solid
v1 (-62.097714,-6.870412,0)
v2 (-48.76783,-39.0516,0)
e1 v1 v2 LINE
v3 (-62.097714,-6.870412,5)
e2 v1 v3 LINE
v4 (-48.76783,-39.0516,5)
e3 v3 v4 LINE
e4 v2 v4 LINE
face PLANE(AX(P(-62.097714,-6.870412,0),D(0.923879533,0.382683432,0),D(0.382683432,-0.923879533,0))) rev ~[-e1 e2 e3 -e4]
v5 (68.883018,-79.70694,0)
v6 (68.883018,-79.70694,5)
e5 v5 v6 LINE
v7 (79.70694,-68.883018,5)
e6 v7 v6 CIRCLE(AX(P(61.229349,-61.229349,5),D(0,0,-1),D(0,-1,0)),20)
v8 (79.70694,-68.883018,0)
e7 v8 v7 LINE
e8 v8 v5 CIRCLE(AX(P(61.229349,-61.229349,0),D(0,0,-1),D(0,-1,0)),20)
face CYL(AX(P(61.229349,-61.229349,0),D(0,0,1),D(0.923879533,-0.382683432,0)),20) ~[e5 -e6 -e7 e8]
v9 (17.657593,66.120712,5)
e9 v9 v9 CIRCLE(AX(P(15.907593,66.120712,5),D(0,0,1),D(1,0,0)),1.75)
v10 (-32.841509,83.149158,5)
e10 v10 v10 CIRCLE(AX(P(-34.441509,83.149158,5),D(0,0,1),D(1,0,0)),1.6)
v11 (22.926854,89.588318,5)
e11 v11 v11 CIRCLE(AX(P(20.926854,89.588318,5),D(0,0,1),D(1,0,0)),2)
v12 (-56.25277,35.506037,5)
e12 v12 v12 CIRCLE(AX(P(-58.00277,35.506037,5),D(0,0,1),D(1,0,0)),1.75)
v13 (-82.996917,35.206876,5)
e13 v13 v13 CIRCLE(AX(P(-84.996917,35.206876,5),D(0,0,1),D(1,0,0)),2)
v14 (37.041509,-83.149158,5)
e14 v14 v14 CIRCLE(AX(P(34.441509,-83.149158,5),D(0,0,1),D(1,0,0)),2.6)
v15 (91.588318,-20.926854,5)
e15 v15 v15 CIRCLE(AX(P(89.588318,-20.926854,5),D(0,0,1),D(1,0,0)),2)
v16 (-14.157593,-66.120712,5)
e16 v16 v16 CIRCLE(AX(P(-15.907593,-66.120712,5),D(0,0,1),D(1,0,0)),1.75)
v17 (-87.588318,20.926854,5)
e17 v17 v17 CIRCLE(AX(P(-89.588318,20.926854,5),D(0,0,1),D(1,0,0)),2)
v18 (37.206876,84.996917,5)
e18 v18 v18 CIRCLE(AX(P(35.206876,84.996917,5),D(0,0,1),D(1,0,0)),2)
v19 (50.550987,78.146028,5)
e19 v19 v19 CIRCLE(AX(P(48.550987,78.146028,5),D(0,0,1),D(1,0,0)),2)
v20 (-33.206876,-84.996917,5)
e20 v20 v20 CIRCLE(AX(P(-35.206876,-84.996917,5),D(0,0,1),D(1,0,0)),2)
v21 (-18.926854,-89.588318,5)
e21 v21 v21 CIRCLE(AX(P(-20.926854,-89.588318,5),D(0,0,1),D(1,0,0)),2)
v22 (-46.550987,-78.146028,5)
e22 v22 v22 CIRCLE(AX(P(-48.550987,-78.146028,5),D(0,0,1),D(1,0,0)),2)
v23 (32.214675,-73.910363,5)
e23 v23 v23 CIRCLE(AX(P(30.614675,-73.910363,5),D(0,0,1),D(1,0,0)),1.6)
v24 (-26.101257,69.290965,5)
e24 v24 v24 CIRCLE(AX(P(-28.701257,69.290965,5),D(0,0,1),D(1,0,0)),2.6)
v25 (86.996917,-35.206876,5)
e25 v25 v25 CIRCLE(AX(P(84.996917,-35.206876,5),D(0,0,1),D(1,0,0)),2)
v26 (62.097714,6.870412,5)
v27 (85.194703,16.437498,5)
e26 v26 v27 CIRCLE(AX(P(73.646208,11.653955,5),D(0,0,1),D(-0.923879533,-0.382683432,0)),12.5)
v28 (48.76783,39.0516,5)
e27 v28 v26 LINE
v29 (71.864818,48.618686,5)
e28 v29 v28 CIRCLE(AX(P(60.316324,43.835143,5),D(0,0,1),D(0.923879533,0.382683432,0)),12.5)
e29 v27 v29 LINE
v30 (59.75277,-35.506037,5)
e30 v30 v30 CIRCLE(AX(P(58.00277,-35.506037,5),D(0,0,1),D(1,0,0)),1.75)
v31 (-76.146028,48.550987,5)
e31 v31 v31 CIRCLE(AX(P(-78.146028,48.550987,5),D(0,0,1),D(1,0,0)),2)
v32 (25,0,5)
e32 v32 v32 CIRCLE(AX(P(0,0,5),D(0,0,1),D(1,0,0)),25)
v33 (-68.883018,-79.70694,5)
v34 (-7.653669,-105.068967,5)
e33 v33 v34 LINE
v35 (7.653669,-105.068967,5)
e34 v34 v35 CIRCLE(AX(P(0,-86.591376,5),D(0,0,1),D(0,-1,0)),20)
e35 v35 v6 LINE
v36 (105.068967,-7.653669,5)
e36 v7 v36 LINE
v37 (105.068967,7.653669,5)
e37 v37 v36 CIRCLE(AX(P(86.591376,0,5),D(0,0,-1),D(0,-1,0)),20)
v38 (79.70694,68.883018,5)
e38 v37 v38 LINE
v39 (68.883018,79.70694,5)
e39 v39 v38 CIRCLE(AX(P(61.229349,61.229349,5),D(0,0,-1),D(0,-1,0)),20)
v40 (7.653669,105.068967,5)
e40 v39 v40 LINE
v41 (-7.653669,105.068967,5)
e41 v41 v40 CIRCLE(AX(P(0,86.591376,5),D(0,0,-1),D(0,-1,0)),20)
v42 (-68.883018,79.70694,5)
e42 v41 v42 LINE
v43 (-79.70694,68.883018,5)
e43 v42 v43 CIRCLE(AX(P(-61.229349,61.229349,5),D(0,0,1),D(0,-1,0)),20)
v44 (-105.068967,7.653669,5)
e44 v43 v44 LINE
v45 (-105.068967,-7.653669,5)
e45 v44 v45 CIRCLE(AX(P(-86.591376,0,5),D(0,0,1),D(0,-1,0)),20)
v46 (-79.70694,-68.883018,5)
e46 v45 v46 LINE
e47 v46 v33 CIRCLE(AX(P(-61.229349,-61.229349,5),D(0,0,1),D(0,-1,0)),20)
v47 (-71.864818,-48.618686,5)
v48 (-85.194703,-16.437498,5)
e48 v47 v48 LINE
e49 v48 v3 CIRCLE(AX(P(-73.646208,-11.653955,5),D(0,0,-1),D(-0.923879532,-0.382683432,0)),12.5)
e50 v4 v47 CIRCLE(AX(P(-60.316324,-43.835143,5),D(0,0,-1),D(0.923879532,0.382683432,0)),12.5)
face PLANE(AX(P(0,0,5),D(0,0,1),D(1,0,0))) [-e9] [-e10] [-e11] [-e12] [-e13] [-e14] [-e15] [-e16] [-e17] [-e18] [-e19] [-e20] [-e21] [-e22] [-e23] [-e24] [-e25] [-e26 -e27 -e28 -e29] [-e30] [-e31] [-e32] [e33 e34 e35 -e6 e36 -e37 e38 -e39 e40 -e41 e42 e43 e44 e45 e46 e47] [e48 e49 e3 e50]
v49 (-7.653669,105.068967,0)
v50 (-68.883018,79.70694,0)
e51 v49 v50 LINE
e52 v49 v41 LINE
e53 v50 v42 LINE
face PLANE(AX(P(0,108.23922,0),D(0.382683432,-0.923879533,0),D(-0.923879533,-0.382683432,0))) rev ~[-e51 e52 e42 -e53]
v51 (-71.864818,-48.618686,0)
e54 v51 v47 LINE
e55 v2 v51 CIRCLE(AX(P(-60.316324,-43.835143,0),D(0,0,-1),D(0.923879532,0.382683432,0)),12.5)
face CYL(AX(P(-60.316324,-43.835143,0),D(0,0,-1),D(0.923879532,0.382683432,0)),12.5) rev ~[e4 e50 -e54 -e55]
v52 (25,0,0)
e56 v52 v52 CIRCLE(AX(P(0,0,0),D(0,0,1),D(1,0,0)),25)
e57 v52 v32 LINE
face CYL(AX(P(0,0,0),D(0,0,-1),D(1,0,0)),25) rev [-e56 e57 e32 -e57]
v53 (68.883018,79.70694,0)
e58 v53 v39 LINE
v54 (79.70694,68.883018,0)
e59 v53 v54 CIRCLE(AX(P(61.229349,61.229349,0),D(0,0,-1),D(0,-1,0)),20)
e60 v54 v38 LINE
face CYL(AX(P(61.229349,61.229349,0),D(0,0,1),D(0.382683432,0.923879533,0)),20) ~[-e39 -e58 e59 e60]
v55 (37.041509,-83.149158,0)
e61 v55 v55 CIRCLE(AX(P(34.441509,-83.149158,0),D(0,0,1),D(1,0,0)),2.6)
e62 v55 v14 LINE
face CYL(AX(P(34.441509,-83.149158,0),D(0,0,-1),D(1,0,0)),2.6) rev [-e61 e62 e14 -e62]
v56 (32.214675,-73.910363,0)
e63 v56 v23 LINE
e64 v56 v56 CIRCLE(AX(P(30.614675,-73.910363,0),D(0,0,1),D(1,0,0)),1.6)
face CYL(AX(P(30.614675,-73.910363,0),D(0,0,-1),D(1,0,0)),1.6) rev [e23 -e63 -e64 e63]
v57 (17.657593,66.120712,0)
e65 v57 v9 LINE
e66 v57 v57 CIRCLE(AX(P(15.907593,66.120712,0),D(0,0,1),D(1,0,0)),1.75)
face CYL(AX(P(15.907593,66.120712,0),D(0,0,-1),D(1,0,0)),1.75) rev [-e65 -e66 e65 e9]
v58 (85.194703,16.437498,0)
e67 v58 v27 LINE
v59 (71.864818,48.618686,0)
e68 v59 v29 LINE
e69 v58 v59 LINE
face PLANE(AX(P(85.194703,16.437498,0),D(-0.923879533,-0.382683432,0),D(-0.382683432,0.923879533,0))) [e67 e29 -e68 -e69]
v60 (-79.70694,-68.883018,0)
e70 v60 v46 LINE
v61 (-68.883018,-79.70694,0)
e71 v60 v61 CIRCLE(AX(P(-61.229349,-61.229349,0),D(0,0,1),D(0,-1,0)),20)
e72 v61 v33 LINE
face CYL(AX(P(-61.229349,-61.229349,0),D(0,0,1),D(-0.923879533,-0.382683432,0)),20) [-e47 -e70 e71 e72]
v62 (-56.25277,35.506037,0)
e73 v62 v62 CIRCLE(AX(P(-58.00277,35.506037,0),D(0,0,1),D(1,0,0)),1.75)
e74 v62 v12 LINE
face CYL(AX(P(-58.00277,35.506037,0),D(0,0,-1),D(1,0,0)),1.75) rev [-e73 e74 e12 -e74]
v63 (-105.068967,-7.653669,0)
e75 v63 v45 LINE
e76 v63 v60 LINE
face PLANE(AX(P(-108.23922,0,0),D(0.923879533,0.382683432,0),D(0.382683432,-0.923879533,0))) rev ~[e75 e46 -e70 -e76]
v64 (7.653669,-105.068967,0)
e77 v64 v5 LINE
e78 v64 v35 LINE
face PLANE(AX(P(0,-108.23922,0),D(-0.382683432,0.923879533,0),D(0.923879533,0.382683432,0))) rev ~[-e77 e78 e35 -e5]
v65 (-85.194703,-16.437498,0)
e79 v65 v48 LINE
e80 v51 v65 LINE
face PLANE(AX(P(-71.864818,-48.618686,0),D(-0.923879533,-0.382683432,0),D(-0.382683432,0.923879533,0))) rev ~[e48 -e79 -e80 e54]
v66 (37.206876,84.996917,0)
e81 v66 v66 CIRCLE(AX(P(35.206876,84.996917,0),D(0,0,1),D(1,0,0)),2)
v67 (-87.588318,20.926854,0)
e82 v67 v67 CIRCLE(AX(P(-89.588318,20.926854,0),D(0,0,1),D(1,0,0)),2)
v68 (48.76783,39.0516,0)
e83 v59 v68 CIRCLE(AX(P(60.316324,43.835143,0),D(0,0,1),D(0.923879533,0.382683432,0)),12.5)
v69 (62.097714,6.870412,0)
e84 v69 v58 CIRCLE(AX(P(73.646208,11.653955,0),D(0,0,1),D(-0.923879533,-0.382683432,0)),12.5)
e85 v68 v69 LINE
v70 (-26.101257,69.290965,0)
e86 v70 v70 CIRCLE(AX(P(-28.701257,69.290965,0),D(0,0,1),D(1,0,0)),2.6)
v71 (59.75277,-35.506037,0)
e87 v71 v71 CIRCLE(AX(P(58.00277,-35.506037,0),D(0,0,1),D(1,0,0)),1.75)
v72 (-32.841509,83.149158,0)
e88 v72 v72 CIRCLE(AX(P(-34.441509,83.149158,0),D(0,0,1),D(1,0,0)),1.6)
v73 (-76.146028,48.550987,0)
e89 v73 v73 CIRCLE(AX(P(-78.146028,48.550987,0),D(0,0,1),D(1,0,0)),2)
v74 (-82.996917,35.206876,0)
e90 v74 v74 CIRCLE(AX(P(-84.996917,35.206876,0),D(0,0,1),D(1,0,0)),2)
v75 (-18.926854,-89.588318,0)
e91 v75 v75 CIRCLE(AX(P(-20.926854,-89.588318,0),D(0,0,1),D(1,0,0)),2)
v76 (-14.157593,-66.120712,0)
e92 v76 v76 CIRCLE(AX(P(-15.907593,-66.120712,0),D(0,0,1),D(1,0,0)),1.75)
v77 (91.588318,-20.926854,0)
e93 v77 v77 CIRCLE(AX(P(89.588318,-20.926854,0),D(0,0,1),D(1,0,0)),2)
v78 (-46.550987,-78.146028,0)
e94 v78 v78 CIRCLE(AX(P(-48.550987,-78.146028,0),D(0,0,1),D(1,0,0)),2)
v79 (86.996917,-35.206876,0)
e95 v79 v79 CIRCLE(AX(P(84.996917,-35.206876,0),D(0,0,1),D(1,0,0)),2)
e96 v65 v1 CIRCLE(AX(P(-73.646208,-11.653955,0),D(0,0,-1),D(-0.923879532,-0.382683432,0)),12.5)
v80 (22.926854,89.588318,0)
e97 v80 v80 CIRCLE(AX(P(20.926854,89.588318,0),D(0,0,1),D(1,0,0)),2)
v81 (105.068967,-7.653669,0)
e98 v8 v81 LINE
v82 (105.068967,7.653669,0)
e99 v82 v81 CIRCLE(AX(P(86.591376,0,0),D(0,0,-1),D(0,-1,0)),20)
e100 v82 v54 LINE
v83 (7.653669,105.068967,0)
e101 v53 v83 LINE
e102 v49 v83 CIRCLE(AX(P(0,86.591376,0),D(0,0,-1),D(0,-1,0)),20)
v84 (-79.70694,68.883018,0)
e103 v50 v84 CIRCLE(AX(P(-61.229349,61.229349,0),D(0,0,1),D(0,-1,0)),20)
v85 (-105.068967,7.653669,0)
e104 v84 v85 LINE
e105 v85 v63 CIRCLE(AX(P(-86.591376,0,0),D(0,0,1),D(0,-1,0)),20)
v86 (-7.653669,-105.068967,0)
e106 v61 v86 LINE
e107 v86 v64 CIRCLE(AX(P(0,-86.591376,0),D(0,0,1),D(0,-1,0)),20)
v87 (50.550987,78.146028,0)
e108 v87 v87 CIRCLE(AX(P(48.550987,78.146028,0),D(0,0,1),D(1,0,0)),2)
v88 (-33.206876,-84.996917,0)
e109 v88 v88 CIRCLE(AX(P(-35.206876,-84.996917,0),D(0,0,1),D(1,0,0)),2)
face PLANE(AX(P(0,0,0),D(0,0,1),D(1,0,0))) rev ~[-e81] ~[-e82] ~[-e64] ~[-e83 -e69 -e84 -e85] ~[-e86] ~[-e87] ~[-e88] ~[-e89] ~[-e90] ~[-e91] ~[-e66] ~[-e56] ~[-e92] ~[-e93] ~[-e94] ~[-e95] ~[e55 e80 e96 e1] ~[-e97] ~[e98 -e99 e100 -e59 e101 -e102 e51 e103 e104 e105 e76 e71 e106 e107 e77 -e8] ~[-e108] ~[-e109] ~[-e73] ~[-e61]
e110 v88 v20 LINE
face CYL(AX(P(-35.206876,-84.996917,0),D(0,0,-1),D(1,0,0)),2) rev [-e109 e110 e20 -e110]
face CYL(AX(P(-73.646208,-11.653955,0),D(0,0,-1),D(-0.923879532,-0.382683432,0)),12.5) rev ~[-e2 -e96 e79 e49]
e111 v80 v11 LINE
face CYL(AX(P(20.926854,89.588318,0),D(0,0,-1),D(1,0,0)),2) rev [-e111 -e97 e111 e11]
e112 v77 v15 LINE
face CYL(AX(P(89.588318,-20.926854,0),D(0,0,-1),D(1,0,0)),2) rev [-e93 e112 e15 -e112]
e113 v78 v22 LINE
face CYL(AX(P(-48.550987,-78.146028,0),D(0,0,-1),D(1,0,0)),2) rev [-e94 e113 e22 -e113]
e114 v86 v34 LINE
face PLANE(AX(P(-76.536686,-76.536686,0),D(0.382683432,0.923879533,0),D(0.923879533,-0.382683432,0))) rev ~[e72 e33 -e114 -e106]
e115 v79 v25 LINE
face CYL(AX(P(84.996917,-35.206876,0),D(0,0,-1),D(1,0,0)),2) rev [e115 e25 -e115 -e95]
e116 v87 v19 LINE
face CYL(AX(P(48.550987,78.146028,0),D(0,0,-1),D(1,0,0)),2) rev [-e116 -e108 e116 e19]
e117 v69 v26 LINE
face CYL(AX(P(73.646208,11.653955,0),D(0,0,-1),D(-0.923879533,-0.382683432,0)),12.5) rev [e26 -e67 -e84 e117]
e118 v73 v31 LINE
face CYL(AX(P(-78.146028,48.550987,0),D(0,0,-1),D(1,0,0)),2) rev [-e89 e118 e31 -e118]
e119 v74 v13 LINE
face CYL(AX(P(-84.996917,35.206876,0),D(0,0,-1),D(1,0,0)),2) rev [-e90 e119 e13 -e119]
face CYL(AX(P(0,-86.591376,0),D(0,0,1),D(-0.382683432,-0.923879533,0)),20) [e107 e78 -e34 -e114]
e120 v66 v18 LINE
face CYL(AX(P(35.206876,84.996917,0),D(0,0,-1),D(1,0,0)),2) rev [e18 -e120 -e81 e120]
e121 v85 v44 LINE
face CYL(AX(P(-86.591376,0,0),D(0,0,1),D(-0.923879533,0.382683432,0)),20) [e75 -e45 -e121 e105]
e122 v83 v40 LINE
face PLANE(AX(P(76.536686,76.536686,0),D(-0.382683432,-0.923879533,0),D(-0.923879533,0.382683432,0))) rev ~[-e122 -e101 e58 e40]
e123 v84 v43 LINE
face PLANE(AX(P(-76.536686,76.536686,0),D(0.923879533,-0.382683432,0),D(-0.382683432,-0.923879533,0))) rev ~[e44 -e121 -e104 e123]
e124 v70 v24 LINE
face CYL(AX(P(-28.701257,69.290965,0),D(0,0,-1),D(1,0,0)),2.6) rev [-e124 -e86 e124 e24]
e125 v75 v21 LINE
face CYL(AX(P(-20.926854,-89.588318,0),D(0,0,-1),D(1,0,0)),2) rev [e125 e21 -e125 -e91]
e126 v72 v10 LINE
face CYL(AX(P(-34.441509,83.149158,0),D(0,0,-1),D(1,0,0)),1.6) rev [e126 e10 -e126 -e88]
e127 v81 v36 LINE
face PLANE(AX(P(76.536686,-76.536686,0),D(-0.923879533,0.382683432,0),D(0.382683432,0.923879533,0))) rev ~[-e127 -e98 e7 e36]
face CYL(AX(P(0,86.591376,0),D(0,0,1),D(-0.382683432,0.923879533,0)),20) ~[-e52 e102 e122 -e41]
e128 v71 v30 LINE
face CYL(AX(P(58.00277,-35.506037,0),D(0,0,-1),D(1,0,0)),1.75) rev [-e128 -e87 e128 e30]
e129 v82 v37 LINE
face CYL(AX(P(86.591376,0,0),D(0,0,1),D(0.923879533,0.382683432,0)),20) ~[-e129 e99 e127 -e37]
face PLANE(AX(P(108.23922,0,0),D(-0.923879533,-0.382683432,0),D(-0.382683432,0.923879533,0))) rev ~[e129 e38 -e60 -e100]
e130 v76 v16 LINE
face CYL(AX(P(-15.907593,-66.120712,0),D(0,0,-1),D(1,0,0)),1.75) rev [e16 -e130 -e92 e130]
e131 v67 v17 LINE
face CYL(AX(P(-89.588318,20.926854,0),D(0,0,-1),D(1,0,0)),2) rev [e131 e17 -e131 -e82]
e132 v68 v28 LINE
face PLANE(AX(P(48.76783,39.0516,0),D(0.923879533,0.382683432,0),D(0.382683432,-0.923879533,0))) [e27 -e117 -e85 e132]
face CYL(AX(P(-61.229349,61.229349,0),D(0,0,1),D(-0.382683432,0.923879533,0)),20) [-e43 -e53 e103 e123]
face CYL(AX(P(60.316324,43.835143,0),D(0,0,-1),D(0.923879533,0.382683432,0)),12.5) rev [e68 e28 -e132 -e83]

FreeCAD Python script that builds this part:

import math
import FreeCAD as App
import Part
import Sketcher

V = App.Vector
Q = App.Units.Quantity


def edges_at(feature, points):
    """Names of the edges that pass closest to the given points."""
    edges = feature.Shape.Edges
    near = lambda p: min(range(len(edges)), key=lambda i: edges[i].distToShape(Part.Vertex(*p))[0])
    return sorted({f"Edge{near(p) + 1}" for p in points})


def add_polygon(sketch, points):
    """Adds a closed chain of lines whose ends are joined by coincident constraints."""
    first, n = sketch.GeometryCount, len(points)
    for a, b in zip(points, points[1:] + points[:1]):
        sketch.addGeometry(Part.LineSegment(App.Vector(*a, 0), App.Vector(*b, 0)), False)
    for i in range(n):
        sketch.addConstraint(Sketcher.Constraint("Coincident", first + i, 2, first + (i + 1) % n, 1))

doc = App.newDocument("Part")
body = doc.addObject("PartDesign::Body", "Body")

sketch1 = body.newObject("Sketcher::SketchObject", "Sketch")
sketch1.AttachmentSupport = (doc.getObject("XY_Plane"), [""])
sketch1.MapMode = "FlatFace"
add_polygon(sketch1, [(0, 108.23922), (-76.536686, 76.536686), (-108.23922, 0), (-76.536686, -76.536686), (0, -108.23922), (76.536686, -76.536686), (108.23922, 0), (76.536686, 76.536686)])
sketch1.addGeometry(Part.Circle(V(-48.550987, -78.146028, 0), V(0, 0, 1), 2), False)
sketch1.addGeometry(Part.Circle(V(-35.206876, -84.996917, 0), V(0, 0, 1), 2), False)
sketch1.addGeometry(Part.Circle(V(-20.926854, -89.588318, 0), V(0, 0, 1), 2), False)
sketch1.addGeometry(Part.Circle(V(-15.907593, -66.120712, 0), V(0, 0, 1), 1.75), False)
sketch1.addGeometry(Part.ArcOfCircle(Part.Circle(V(-73.646208, -11.653955, 0), V(0, 0, 1), 12.5), math.radians(22.5), math.radians(202.5)), False)
sketch1.addGeometry(Part.LineSegment(V(-62.097714, -6.870412, 0), V(-48.76783, -39.0516, 0)), False)
sketch1.addGeometry(Part.ArcOfCircle(Part.Circle(V(-60.316324, -43.835143, 0), V(0, 0, 1), 12.5), math.radians(-157.5), math.radians(22.5)), False)
sketch1.addGeometry(Part.LineSegment(V(-71.864818, -48.618686, 0), V(-85.194703, -16.437498, 0)), False)
sketch1.addGeometry(Part.Circle(V(34.441509, -83.149158, 0), V(0, 0, 1), 2.6), False)
sketch1.addGeometry(Part.Circle(V(30.614675, -73.910363, 0), V(0, 0, 1), 1.6), False)
sketch1.addGeometry(Part.Circle(V(58.00277, -35.506037, 0), V(0, 0, 1), 1.75), False)
sketch1.addGeometry(Part.Circle(V(84.996917, -35.206876, 0), V(0, 0, 1), 2), False)
sketch1.addGeometry(Part.Circle(V(89.588318, -20.926854, 0), V(0, 0, 1), 2), False)
sketch1.addGeometry(Part.Circle(V(-89.588318, 20.926854, 0), V(0, 0, 1), 2), False)
sketch1.addGeometry(Part.Circle(V(-84.996917, 35.206876, 0), V(0, 0, 1), 2), False)
sketch1.addGeometry(Part.Circle(V(-58.00277, 35.506037, 0), V(0, 0, 1), 1.75), False)
sketch1.addGeometry(Part.Circle(V(-78.146028, 48.550987, 0), V(0, 0, 1), 2), False)
sketch1.addGeometry(Part.Circle(V(-28.701257, 69.290965, 0), V(0, 0, 1), 2.6), False)
sketch1.addGeometry(Part.Circle(V(-34.441509, 83.149158, 0), V(0, 0, 1), 1.6), False)
sketch1.addGeometry(Part.Circle(V(0, 0, 0), V(0, 0, 1), 25), False)
sketch1.addGeometry(Part.LineSegment(V(62.097714, 6.870412, 0), V(48.76783, 39.0516, 0)), False)
sketch1.addGeometry(Part.ArcOfCircle(Part.Circle(V(60.316324, 43.835143, 0), V(0, 0, 1), 12.5), math.radians(22.5), math.radians(202.5)), False)
sketch1.addGeometry(Part.LineSegment(V(71.864818, 48.618686, 0), V(85.194703, 16.437498, 0)), False)
sketch1.addGeometry(Part.ArcOfCircle(Part.Circle(V(73.646208, 11.653955, 0), V(0, 0, 1), 12.5), math.radians(-157.5), math.radians(22.5)), False)
sketch1.addGeometry(Part.Circle(V(15.907593, 66.120712, 0), V(0, 0, 1), 1.75), False)
sketch1.addGeometry(Part.Circle(V(20.926854, 89.588318, 0), V(0, 0, 1), 2), False)
sketch1.addGeometry(Part.Circle(V(35.206876, 84.996917, 0), V(0, 0, 1), 2), False)
sketch1.addGeometry(Part.Circle(V(48.550987, 78.146028, 0), V(0, 0, 1), 2), False)
sketch1.addConstraint([
    Sketcher.Constraint("Tangent", 12, 1, 13, 1),
    Sketcher.Constraint("Tangent", 13, 2, 14, 2),
    Sketcher.Constraint("Tangent", 14, 1, 15, 1),
    Sketcher.Constraint("Tangent", 15, 2, 12, 2),
    Sketcher.Constraint("Tangent", 28, 2, 29, 2),
    Sketcher.Constraint("Tangent", 29, 1, 30, 1),
    Sketcher.Constraint("Tangent", 30, 2, 31, 2),
    Sketcher.Constraint("Tangent", 31, 1, 28, 1),
    Sketcher.Constraint("Coincident", 27, 3, -1, 1),
    Sketcher.Constraint("Equal", 8, 9),
    Sketcher.Constraint("Equal", 9, 10),
    Sketcher.Constraint("Equal", 12, 14),
    Sketcher.Constraint("Equal", 11, 18),
    Sketcher.Constraint("Equal", 10, 19),
    Sketcher.Constraint("Equal", 19, 20),
    Sketcher.Constraint("Equal", 20, 21),
    Sketcher.Constraint("Equal", 21, 22),
    Sketcher.Constraint("Equal", 18, 23),
    Sketcher.Constraint("Equal", 22, 24),
    Sketcher.Constraint("Equal", 16, 25),
    Sketcher.Constraint("Equal", 17, 26),
    Sketcher.Constraint("Equal", 14, 29),
    Sketcher.Constraint("Equal", 29, 31),
    Sketcher.Constraint("Equal", 23, 32),
    Sketcher.Constraint("Equal", 24, 33),
    Sketcher.Constraint("Equal", 33, 34),
    Sketcher.Constraint("Equal", 34, 35),
    Sketcher.Constraint("Symmetric", 20, 3, 21, 3, -1, 1),
    Sketcher.Constraint("Symmetric", 19, 3, 22, 3, -1, 1),
    Sketcher.Constraint("Symmetric", 18, 3, 23, 3, -1, 1),
    Sketcher.Constraint("Symmetric", 16, 3, 26, 3, -1, 1),
    Sketcher.Constraint("Symmetric", 14, 3, 29, 3, -1, 1),
    Sketcher.Constraint("Symmetric", 12, 3, 31, 3, -1, 1),
    Sketcher.Constraint("Symmetric", 11, 3, 32, 3, -1, 1),
    Sketcher.Constraint("Symmetric", 10, 3, 33, 3, -1, 1),
    Sketcher.Constraint("Symmetric", 9, 3, 34, 3, -1, 1),
    Sketcher.Constraint("Symmetric", 8, 3, 35, 3, -1, 1),
    Sketcher.Constraint("Symmetric", 0, 2, 4, 2, -1, 1),
    Sketcher.Constraint("Symmetric", 1, 2, 5, 2, -1, 1),
    Sketcher.Constraint("Symmetric", 2, 2, 6, 2, -1, 1),
    Sketcher.Constraint("Symmetric", 3, 2, 7, 2, -1, 1),
    Sketcher.Constraint("Symmetric", 2, 2, 4, 2, -2),
    Sketcher.Constraint("PointOnObject", 1, 2, -1),
    Sketcher.Constraint("PointOnObject", 3, 2, -2),
    Sketcher.Constraint("Perpendicular", 0, 2),
    Sketcher.Constraint("Parallel", 6, 13),
    Sketcher.Constraint("Equal", 0, 1),
    Sketcher.Constraint("Diameter", 8, Q("4 mm")),
    Sketcher.Constraint("Diameter", 27, Q("50 mm")),
    Sketcher.Constraint("Diameter", 11, Q("3.5 mm")),
    Sketcher.Constraint("Diameter", 16, Q("5.2 mm")),
    Sketcher.Constraint("Diameter", 17, Q("3.2 mm")),
    Sketcher.Constraint("Radius", 12, Q("12.5 mm")),
    Sketcher.Constraint("Angle", 0, Q("-157.5 deg")),
    Sketcher.Constraint("DistanceY", 2, 2, 14, 1, Q("27.918001 mm")),
    Sketcher.Constraint("DistanceY", 13, 2, -1, 1, Q("39.0516 mm")),
    Sketcher.Constraint("DistanceY", 10, 3, 9, 3, Q("4.591401 mm")),
    Sketcher.Constraint("DistanceX", 11, 3, 16, 3, Q("50.349101 mm")),
    Sketcher.Constraint("DistanceX", 19, 3, 20, 3, Q("4.591401 mm")),
    Sketcher.Constraint("DistanceY", 24, 3, 0, 2, Q("27.985699 mm")),
    Sketcher.Constraint("DistanceX", 1, 2, 21, 3, Q("18.650902 mm")),
    Sketcher.Constraint("DistanceX", 2, 2, 8, 3, Q("27.985699 mm")),
    Sketcher.Constraint("DistanceY", 3, 2, 10, 3, Q("18.650902 mm")),
    Sketcher.Constraint("DistanceY", 11, 3, -1, 1, Q("66.120712 mm")),
    Sketcher.Constraint("DistanceX", 12, 3, -1, 1, Q("73.646208 mm")),
    Sketcher.Constraint("DistanceX", -1, 1, 16, 3, Q("34.441509 mm")),
    Sketcher.Constraint("DistanceX", -1, 1, 18, 3, Q("58.00277 mm")),
    Sketcher.Constraint("DistanceY", 12, 1, -1, 1, Q("6.870412 mm")),
    Sketcher.Constraint("DistanceX", 8, 3, 9, 3, Q("13.344112 mm")),
    Sketcher.Constraint("DistanceY", 9, 3, 8, 3, Q("6.850889 mm")),
    Sketcher.Constraint("DistanceX", 10, 3, 11, 3, Q("5.019261 mm")),
    Sketcher.Constraint("DistanceY", 10, 3, 16, 3, Q("6.43916 mm")),
    Sketcher.Constraint("DistanceY", 17, 3, 11, 3, Q("7.789651 mm")),
    Sketcher.Constraint("DistanceX", 10, 3, 17, 3, Q("51.541528 mm")),
    Sketcher.Constraint("DistanceY", 16, 3, 18, 3, Q("47.643121 mm")),
    Sketcher.Constraint("DistanceY", 18, 3, 19, 3, Q("0.299161 mm")),
    Sketcher.Constraint("DistanceY", 17, 3, 20, 3, Q("52.983509 mm")),
    Sketcher.Constraint("DistanceX", 22, 3, 24, 3, Q("6.850889 mm")),
    Sketcher.Constraint("DistanceX", 24, 3, 25, 3, Q("49.44477 mm")),
    Sketcher.Constraint("DistanceY", 22, 3, 25, 3, Q("34.084089 mm")),
])
pad1 = body.newObject("PartDesign::Pad", "Pad")
pad1.Profile = sketch1
pad1.Length = 5
doc.recompute()

fillet = body.newObject("PartDesign::Fillet", "Fillet")
fillet.Base = (pad1, edges_at(pad1, [
    (76.537, 76.537, 2.5),
    (108.239, 0, 2.5),
    (76.537, -76.537, 2.5),
    (0, -108.239, 2.5),
    (-76.537, -76.537, 2.5),
    (-108.239, 0, 2.5),
    (-76.537, 76.537, 2.5),
    (0, 108.239, 2.5),
]))
fillet.Radius = 20

doc.recompute()
